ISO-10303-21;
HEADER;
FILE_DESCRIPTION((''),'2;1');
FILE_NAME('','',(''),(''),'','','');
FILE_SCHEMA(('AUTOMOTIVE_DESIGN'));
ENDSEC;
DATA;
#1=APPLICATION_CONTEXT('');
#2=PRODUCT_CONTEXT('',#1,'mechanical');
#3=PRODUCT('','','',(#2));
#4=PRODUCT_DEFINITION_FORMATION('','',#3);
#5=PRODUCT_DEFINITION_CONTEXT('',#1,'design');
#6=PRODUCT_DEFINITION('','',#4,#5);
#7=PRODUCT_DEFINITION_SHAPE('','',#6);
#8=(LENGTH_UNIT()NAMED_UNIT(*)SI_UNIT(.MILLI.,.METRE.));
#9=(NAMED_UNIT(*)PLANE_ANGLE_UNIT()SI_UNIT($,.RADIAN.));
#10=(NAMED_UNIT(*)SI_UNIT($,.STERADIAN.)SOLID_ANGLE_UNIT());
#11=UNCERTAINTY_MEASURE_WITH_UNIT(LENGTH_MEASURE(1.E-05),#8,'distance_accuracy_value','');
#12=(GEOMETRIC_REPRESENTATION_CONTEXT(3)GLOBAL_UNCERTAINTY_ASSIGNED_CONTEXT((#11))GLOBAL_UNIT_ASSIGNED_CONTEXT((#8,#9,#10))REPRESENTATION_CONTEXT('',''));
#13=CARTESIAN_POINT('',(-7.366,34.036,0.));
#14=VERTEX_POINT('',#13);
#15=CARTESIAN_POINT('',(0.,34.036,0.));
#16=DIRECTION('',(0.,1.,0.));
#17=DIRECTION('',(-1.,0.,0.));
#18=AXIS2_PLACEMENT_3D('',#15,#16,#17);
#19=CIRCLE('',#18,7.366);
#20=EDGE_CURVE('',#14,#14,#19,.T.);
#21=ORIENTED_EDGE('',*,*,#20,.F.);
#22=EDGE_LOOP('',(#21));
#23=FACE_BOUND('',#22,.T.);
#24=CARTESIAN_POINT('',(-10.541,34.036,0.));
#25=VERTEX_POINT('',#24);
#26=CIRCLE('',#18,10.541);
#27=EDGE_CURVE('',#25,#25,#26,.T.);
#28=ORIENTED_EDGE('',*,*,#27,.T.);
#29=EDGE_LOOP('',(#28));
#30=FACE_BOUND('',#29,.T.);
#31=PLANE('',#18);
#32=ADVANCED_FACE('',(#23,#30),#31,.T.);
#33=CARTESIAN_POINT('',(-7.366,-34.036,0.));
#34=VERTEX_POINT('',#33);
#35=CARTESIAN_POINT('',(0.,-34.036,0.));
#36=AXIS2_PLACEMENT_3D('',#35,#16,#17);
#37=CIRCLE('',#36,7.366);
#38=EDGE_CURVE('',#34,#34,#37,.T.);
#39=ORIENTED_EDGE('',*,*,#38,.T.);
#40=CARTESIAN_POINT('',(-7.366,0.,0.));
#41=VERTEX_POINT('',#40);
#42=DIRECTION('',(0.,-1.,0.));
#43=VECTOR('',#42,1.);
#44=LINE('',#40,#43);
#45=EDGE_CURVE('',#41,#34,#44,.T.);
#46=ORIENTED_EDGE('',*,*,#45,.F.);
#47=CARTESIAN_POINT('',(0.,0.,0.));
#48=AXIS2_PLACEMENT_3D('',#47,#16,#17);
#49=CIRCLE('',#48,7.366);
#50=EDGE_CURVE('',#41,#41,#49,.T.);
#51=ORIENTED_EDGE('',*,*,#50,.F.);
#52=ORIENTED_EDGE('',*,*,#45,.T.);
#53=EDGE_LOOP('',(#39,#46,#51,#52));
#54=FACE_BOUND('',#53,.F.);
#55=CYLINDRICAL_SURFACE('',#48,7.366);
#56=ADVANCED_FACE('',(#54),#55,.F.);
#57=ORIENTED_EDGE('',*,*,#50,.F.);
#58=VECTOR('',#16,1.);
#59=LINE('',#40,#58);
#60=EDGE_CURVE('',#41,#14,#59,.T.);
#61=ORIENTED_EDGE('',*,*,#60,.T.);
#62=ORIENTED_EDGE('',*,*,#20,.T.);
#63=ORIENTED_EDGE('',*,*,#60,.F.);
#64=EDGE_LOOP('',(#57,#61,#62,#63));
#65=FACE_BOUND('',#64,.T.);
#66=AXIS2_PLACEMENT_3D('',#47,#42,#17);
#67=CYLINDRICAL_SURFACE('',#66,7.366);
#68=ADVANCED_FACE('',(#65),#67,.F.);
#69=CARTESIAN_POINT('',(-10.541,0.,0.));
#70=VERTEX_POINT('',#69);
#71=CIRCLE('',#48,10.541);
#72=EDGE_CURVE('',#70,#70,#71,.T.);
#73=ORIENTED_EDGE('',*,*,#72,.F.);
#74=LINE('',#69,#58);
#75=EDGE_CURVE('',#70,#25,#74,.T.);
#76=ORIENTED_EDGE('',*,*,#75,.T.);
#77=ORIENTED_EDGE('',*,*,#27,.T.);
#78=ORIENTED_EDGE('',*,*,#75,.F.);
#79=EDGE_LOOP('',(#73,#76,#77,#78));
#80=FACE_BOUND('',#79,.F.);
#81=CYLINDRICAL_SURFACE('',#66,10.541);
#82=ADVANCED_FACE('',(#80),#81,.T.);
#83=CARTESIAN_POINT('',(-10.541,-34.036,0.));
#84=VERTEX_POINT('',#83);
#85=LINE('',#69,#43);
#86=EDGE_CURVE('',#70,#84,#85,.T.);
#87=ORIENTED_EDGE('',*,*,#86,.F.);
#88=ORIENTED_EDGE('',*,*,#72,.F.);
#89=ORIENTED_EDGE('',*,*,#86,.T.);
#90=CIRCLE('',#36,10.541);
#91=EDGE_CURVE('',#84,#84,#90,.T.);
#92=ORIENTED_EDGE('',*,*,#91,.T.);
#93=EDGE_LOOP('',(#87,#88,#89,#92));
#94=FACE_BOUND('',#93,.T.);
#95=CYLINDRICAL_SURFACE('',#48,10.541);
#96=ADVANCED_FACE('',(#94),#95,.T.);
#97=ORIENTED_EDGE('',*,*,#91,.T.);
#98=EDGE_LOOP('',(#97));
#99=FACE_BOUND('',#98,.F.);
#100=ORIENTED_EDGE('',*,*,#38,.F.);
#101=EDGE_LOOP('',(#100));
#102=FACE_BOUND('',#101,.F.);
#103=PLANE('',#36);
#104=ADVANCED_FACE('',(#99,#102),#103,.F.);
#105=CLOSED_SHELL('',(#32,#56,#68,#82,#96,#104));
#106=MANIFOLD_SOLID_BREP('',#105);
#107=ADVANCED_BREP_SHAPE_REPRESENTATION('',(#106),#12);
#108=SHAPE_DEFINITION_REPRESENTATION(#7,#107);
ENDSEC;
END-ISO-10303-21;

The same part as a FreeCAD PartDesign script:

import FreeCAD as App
import Part
import Sketcher
Q = App.Units.Quantity

doc = App.newDocument("Part")
body = doc.addObject("PartDesign::Body", "Body")

# Sketch on XZ plane
sketch1 = doc.addObject("Sketcher::SketchObject", "Sketch")
body.addObject(sketch1)
sketch1.AttachmentSupport = (doc.XZ_Plane, [""])
sketch1.MapMode = "FlatFace"
sketch1.addGeometry([
    Part.Circle(App.Vector(0, 0, 0), App.Vector(0, 0, 1), 11),
    Part.Circle(App.Vector(0, 0, 0), App.Vector(0, 0, 1), 7),
], False)
sketch1.addConstraint([
    Sketcher.Constraint("Coincident", 0, 3, -1, 1),
    Sketcher.Constraint("Coincident", 1, 3, -1, 1),
    Sketcher.Constraint("Diameter", 1, Q("0.58 in")),
    Sketcher.Constraint("Diameter", 0, Q("0.83 in")),
])
pad1 = doc.addObject("PartDesign::Pad", "Pad")
body.addObject(pad1)
pad1.Profile = sketch1
pad1.Length = Q("2.68 in")
pad1.Midplane = True

doc.recompute()
